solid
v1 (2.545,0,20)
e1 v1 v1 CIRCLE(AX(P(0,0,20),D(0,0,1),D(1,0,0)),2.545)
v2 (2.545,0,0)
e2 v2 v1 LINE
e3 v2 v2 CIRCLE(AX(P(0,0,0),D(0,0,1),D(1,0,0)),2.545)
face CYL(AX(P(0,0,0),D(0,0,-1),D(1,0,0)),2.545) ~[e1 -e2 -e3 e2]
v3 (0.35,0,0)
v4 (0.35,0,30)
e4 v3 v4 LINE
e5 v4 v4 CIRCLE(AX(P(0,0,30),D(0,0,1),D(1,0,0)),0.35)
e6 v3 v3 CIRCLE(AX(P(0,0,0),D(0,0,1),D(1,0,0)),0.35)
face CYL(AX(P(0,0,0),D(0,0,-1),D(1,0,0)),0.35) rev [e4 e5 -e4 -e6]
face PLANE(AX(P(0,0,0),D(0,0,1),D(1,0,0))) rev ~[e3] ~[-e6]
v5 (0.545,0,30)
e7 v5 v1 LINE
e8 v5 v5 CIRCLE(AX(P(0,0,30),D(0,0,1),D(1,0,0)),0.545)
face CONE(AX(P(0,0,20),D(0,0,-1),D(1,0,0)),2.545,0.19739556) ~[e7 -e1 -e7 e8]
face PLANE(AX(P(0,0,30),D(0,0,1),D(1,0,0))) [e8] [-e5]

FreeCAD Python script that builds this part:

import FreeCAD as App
import Part
import Sketcher
Q = App.Units.Quantity


def edges_at(feature, points):
    """Names of the edges that pass closest to the given points."""
    edges = feature.Shape.Edges
    near = lambda p: min(range(len(edges)), key=lambda i: edges[i].distToShape(Part.Vertex(*p))[0])
    return sorted({f"Edge{near(p) + 1}" for p in points})

doc = App.newDocument("Part")
body = doc.addObject("PartDesign::Body", "Body")

sketch1 = doc.addObject("Sketcher::SketchObject", "Sketch")
body.addObject(sketch1)
sketch1.AttachmentSupport = (doc.XY_Plane, [""])
sketch1.MapMode = "FlatFace"
sketch1.addGeometry([
    Part.Circle(App.Vector(0, 0, 0), App.Vector(0, 0, 1), 2.545),
    Part.Circle(App.Vector(0, 0, 0), App.Vector(0, 0, 1), 0.35),
], False)
sketch1.addConstraint([
    Sketcher.Constraint("Coincident", 0, 3, -1, 1),
    Sketcher.Constraint("Coincident", 1, 3, -1, 1),
    Sketcher.Constraint("Diameter", 1, Q("0.7 mm")),
    Sketcher.Constraint("Diameter", 0, Q("5.09 mm")),
])
pad1 = doc.addObject("PartDesign::Pad", "Pad")
body.addObject(pad1)
pad1.Profile = sketch1
pad1.Length = 30
doc.recompute()

chamfer = doc.addObject("PartDesign::Chamfer", "Chamfer")
body.addObject(chamfer)
chamfer.Base = (pad1, edges_at(pad1, [(-2.373, -0.92, 30)]))
chamfer.ChamferType = "Two distances"
chamfer.Size = 2
chamfer.Size2 = 10
chamfer.FlipDirection = True

doc.recompute()
